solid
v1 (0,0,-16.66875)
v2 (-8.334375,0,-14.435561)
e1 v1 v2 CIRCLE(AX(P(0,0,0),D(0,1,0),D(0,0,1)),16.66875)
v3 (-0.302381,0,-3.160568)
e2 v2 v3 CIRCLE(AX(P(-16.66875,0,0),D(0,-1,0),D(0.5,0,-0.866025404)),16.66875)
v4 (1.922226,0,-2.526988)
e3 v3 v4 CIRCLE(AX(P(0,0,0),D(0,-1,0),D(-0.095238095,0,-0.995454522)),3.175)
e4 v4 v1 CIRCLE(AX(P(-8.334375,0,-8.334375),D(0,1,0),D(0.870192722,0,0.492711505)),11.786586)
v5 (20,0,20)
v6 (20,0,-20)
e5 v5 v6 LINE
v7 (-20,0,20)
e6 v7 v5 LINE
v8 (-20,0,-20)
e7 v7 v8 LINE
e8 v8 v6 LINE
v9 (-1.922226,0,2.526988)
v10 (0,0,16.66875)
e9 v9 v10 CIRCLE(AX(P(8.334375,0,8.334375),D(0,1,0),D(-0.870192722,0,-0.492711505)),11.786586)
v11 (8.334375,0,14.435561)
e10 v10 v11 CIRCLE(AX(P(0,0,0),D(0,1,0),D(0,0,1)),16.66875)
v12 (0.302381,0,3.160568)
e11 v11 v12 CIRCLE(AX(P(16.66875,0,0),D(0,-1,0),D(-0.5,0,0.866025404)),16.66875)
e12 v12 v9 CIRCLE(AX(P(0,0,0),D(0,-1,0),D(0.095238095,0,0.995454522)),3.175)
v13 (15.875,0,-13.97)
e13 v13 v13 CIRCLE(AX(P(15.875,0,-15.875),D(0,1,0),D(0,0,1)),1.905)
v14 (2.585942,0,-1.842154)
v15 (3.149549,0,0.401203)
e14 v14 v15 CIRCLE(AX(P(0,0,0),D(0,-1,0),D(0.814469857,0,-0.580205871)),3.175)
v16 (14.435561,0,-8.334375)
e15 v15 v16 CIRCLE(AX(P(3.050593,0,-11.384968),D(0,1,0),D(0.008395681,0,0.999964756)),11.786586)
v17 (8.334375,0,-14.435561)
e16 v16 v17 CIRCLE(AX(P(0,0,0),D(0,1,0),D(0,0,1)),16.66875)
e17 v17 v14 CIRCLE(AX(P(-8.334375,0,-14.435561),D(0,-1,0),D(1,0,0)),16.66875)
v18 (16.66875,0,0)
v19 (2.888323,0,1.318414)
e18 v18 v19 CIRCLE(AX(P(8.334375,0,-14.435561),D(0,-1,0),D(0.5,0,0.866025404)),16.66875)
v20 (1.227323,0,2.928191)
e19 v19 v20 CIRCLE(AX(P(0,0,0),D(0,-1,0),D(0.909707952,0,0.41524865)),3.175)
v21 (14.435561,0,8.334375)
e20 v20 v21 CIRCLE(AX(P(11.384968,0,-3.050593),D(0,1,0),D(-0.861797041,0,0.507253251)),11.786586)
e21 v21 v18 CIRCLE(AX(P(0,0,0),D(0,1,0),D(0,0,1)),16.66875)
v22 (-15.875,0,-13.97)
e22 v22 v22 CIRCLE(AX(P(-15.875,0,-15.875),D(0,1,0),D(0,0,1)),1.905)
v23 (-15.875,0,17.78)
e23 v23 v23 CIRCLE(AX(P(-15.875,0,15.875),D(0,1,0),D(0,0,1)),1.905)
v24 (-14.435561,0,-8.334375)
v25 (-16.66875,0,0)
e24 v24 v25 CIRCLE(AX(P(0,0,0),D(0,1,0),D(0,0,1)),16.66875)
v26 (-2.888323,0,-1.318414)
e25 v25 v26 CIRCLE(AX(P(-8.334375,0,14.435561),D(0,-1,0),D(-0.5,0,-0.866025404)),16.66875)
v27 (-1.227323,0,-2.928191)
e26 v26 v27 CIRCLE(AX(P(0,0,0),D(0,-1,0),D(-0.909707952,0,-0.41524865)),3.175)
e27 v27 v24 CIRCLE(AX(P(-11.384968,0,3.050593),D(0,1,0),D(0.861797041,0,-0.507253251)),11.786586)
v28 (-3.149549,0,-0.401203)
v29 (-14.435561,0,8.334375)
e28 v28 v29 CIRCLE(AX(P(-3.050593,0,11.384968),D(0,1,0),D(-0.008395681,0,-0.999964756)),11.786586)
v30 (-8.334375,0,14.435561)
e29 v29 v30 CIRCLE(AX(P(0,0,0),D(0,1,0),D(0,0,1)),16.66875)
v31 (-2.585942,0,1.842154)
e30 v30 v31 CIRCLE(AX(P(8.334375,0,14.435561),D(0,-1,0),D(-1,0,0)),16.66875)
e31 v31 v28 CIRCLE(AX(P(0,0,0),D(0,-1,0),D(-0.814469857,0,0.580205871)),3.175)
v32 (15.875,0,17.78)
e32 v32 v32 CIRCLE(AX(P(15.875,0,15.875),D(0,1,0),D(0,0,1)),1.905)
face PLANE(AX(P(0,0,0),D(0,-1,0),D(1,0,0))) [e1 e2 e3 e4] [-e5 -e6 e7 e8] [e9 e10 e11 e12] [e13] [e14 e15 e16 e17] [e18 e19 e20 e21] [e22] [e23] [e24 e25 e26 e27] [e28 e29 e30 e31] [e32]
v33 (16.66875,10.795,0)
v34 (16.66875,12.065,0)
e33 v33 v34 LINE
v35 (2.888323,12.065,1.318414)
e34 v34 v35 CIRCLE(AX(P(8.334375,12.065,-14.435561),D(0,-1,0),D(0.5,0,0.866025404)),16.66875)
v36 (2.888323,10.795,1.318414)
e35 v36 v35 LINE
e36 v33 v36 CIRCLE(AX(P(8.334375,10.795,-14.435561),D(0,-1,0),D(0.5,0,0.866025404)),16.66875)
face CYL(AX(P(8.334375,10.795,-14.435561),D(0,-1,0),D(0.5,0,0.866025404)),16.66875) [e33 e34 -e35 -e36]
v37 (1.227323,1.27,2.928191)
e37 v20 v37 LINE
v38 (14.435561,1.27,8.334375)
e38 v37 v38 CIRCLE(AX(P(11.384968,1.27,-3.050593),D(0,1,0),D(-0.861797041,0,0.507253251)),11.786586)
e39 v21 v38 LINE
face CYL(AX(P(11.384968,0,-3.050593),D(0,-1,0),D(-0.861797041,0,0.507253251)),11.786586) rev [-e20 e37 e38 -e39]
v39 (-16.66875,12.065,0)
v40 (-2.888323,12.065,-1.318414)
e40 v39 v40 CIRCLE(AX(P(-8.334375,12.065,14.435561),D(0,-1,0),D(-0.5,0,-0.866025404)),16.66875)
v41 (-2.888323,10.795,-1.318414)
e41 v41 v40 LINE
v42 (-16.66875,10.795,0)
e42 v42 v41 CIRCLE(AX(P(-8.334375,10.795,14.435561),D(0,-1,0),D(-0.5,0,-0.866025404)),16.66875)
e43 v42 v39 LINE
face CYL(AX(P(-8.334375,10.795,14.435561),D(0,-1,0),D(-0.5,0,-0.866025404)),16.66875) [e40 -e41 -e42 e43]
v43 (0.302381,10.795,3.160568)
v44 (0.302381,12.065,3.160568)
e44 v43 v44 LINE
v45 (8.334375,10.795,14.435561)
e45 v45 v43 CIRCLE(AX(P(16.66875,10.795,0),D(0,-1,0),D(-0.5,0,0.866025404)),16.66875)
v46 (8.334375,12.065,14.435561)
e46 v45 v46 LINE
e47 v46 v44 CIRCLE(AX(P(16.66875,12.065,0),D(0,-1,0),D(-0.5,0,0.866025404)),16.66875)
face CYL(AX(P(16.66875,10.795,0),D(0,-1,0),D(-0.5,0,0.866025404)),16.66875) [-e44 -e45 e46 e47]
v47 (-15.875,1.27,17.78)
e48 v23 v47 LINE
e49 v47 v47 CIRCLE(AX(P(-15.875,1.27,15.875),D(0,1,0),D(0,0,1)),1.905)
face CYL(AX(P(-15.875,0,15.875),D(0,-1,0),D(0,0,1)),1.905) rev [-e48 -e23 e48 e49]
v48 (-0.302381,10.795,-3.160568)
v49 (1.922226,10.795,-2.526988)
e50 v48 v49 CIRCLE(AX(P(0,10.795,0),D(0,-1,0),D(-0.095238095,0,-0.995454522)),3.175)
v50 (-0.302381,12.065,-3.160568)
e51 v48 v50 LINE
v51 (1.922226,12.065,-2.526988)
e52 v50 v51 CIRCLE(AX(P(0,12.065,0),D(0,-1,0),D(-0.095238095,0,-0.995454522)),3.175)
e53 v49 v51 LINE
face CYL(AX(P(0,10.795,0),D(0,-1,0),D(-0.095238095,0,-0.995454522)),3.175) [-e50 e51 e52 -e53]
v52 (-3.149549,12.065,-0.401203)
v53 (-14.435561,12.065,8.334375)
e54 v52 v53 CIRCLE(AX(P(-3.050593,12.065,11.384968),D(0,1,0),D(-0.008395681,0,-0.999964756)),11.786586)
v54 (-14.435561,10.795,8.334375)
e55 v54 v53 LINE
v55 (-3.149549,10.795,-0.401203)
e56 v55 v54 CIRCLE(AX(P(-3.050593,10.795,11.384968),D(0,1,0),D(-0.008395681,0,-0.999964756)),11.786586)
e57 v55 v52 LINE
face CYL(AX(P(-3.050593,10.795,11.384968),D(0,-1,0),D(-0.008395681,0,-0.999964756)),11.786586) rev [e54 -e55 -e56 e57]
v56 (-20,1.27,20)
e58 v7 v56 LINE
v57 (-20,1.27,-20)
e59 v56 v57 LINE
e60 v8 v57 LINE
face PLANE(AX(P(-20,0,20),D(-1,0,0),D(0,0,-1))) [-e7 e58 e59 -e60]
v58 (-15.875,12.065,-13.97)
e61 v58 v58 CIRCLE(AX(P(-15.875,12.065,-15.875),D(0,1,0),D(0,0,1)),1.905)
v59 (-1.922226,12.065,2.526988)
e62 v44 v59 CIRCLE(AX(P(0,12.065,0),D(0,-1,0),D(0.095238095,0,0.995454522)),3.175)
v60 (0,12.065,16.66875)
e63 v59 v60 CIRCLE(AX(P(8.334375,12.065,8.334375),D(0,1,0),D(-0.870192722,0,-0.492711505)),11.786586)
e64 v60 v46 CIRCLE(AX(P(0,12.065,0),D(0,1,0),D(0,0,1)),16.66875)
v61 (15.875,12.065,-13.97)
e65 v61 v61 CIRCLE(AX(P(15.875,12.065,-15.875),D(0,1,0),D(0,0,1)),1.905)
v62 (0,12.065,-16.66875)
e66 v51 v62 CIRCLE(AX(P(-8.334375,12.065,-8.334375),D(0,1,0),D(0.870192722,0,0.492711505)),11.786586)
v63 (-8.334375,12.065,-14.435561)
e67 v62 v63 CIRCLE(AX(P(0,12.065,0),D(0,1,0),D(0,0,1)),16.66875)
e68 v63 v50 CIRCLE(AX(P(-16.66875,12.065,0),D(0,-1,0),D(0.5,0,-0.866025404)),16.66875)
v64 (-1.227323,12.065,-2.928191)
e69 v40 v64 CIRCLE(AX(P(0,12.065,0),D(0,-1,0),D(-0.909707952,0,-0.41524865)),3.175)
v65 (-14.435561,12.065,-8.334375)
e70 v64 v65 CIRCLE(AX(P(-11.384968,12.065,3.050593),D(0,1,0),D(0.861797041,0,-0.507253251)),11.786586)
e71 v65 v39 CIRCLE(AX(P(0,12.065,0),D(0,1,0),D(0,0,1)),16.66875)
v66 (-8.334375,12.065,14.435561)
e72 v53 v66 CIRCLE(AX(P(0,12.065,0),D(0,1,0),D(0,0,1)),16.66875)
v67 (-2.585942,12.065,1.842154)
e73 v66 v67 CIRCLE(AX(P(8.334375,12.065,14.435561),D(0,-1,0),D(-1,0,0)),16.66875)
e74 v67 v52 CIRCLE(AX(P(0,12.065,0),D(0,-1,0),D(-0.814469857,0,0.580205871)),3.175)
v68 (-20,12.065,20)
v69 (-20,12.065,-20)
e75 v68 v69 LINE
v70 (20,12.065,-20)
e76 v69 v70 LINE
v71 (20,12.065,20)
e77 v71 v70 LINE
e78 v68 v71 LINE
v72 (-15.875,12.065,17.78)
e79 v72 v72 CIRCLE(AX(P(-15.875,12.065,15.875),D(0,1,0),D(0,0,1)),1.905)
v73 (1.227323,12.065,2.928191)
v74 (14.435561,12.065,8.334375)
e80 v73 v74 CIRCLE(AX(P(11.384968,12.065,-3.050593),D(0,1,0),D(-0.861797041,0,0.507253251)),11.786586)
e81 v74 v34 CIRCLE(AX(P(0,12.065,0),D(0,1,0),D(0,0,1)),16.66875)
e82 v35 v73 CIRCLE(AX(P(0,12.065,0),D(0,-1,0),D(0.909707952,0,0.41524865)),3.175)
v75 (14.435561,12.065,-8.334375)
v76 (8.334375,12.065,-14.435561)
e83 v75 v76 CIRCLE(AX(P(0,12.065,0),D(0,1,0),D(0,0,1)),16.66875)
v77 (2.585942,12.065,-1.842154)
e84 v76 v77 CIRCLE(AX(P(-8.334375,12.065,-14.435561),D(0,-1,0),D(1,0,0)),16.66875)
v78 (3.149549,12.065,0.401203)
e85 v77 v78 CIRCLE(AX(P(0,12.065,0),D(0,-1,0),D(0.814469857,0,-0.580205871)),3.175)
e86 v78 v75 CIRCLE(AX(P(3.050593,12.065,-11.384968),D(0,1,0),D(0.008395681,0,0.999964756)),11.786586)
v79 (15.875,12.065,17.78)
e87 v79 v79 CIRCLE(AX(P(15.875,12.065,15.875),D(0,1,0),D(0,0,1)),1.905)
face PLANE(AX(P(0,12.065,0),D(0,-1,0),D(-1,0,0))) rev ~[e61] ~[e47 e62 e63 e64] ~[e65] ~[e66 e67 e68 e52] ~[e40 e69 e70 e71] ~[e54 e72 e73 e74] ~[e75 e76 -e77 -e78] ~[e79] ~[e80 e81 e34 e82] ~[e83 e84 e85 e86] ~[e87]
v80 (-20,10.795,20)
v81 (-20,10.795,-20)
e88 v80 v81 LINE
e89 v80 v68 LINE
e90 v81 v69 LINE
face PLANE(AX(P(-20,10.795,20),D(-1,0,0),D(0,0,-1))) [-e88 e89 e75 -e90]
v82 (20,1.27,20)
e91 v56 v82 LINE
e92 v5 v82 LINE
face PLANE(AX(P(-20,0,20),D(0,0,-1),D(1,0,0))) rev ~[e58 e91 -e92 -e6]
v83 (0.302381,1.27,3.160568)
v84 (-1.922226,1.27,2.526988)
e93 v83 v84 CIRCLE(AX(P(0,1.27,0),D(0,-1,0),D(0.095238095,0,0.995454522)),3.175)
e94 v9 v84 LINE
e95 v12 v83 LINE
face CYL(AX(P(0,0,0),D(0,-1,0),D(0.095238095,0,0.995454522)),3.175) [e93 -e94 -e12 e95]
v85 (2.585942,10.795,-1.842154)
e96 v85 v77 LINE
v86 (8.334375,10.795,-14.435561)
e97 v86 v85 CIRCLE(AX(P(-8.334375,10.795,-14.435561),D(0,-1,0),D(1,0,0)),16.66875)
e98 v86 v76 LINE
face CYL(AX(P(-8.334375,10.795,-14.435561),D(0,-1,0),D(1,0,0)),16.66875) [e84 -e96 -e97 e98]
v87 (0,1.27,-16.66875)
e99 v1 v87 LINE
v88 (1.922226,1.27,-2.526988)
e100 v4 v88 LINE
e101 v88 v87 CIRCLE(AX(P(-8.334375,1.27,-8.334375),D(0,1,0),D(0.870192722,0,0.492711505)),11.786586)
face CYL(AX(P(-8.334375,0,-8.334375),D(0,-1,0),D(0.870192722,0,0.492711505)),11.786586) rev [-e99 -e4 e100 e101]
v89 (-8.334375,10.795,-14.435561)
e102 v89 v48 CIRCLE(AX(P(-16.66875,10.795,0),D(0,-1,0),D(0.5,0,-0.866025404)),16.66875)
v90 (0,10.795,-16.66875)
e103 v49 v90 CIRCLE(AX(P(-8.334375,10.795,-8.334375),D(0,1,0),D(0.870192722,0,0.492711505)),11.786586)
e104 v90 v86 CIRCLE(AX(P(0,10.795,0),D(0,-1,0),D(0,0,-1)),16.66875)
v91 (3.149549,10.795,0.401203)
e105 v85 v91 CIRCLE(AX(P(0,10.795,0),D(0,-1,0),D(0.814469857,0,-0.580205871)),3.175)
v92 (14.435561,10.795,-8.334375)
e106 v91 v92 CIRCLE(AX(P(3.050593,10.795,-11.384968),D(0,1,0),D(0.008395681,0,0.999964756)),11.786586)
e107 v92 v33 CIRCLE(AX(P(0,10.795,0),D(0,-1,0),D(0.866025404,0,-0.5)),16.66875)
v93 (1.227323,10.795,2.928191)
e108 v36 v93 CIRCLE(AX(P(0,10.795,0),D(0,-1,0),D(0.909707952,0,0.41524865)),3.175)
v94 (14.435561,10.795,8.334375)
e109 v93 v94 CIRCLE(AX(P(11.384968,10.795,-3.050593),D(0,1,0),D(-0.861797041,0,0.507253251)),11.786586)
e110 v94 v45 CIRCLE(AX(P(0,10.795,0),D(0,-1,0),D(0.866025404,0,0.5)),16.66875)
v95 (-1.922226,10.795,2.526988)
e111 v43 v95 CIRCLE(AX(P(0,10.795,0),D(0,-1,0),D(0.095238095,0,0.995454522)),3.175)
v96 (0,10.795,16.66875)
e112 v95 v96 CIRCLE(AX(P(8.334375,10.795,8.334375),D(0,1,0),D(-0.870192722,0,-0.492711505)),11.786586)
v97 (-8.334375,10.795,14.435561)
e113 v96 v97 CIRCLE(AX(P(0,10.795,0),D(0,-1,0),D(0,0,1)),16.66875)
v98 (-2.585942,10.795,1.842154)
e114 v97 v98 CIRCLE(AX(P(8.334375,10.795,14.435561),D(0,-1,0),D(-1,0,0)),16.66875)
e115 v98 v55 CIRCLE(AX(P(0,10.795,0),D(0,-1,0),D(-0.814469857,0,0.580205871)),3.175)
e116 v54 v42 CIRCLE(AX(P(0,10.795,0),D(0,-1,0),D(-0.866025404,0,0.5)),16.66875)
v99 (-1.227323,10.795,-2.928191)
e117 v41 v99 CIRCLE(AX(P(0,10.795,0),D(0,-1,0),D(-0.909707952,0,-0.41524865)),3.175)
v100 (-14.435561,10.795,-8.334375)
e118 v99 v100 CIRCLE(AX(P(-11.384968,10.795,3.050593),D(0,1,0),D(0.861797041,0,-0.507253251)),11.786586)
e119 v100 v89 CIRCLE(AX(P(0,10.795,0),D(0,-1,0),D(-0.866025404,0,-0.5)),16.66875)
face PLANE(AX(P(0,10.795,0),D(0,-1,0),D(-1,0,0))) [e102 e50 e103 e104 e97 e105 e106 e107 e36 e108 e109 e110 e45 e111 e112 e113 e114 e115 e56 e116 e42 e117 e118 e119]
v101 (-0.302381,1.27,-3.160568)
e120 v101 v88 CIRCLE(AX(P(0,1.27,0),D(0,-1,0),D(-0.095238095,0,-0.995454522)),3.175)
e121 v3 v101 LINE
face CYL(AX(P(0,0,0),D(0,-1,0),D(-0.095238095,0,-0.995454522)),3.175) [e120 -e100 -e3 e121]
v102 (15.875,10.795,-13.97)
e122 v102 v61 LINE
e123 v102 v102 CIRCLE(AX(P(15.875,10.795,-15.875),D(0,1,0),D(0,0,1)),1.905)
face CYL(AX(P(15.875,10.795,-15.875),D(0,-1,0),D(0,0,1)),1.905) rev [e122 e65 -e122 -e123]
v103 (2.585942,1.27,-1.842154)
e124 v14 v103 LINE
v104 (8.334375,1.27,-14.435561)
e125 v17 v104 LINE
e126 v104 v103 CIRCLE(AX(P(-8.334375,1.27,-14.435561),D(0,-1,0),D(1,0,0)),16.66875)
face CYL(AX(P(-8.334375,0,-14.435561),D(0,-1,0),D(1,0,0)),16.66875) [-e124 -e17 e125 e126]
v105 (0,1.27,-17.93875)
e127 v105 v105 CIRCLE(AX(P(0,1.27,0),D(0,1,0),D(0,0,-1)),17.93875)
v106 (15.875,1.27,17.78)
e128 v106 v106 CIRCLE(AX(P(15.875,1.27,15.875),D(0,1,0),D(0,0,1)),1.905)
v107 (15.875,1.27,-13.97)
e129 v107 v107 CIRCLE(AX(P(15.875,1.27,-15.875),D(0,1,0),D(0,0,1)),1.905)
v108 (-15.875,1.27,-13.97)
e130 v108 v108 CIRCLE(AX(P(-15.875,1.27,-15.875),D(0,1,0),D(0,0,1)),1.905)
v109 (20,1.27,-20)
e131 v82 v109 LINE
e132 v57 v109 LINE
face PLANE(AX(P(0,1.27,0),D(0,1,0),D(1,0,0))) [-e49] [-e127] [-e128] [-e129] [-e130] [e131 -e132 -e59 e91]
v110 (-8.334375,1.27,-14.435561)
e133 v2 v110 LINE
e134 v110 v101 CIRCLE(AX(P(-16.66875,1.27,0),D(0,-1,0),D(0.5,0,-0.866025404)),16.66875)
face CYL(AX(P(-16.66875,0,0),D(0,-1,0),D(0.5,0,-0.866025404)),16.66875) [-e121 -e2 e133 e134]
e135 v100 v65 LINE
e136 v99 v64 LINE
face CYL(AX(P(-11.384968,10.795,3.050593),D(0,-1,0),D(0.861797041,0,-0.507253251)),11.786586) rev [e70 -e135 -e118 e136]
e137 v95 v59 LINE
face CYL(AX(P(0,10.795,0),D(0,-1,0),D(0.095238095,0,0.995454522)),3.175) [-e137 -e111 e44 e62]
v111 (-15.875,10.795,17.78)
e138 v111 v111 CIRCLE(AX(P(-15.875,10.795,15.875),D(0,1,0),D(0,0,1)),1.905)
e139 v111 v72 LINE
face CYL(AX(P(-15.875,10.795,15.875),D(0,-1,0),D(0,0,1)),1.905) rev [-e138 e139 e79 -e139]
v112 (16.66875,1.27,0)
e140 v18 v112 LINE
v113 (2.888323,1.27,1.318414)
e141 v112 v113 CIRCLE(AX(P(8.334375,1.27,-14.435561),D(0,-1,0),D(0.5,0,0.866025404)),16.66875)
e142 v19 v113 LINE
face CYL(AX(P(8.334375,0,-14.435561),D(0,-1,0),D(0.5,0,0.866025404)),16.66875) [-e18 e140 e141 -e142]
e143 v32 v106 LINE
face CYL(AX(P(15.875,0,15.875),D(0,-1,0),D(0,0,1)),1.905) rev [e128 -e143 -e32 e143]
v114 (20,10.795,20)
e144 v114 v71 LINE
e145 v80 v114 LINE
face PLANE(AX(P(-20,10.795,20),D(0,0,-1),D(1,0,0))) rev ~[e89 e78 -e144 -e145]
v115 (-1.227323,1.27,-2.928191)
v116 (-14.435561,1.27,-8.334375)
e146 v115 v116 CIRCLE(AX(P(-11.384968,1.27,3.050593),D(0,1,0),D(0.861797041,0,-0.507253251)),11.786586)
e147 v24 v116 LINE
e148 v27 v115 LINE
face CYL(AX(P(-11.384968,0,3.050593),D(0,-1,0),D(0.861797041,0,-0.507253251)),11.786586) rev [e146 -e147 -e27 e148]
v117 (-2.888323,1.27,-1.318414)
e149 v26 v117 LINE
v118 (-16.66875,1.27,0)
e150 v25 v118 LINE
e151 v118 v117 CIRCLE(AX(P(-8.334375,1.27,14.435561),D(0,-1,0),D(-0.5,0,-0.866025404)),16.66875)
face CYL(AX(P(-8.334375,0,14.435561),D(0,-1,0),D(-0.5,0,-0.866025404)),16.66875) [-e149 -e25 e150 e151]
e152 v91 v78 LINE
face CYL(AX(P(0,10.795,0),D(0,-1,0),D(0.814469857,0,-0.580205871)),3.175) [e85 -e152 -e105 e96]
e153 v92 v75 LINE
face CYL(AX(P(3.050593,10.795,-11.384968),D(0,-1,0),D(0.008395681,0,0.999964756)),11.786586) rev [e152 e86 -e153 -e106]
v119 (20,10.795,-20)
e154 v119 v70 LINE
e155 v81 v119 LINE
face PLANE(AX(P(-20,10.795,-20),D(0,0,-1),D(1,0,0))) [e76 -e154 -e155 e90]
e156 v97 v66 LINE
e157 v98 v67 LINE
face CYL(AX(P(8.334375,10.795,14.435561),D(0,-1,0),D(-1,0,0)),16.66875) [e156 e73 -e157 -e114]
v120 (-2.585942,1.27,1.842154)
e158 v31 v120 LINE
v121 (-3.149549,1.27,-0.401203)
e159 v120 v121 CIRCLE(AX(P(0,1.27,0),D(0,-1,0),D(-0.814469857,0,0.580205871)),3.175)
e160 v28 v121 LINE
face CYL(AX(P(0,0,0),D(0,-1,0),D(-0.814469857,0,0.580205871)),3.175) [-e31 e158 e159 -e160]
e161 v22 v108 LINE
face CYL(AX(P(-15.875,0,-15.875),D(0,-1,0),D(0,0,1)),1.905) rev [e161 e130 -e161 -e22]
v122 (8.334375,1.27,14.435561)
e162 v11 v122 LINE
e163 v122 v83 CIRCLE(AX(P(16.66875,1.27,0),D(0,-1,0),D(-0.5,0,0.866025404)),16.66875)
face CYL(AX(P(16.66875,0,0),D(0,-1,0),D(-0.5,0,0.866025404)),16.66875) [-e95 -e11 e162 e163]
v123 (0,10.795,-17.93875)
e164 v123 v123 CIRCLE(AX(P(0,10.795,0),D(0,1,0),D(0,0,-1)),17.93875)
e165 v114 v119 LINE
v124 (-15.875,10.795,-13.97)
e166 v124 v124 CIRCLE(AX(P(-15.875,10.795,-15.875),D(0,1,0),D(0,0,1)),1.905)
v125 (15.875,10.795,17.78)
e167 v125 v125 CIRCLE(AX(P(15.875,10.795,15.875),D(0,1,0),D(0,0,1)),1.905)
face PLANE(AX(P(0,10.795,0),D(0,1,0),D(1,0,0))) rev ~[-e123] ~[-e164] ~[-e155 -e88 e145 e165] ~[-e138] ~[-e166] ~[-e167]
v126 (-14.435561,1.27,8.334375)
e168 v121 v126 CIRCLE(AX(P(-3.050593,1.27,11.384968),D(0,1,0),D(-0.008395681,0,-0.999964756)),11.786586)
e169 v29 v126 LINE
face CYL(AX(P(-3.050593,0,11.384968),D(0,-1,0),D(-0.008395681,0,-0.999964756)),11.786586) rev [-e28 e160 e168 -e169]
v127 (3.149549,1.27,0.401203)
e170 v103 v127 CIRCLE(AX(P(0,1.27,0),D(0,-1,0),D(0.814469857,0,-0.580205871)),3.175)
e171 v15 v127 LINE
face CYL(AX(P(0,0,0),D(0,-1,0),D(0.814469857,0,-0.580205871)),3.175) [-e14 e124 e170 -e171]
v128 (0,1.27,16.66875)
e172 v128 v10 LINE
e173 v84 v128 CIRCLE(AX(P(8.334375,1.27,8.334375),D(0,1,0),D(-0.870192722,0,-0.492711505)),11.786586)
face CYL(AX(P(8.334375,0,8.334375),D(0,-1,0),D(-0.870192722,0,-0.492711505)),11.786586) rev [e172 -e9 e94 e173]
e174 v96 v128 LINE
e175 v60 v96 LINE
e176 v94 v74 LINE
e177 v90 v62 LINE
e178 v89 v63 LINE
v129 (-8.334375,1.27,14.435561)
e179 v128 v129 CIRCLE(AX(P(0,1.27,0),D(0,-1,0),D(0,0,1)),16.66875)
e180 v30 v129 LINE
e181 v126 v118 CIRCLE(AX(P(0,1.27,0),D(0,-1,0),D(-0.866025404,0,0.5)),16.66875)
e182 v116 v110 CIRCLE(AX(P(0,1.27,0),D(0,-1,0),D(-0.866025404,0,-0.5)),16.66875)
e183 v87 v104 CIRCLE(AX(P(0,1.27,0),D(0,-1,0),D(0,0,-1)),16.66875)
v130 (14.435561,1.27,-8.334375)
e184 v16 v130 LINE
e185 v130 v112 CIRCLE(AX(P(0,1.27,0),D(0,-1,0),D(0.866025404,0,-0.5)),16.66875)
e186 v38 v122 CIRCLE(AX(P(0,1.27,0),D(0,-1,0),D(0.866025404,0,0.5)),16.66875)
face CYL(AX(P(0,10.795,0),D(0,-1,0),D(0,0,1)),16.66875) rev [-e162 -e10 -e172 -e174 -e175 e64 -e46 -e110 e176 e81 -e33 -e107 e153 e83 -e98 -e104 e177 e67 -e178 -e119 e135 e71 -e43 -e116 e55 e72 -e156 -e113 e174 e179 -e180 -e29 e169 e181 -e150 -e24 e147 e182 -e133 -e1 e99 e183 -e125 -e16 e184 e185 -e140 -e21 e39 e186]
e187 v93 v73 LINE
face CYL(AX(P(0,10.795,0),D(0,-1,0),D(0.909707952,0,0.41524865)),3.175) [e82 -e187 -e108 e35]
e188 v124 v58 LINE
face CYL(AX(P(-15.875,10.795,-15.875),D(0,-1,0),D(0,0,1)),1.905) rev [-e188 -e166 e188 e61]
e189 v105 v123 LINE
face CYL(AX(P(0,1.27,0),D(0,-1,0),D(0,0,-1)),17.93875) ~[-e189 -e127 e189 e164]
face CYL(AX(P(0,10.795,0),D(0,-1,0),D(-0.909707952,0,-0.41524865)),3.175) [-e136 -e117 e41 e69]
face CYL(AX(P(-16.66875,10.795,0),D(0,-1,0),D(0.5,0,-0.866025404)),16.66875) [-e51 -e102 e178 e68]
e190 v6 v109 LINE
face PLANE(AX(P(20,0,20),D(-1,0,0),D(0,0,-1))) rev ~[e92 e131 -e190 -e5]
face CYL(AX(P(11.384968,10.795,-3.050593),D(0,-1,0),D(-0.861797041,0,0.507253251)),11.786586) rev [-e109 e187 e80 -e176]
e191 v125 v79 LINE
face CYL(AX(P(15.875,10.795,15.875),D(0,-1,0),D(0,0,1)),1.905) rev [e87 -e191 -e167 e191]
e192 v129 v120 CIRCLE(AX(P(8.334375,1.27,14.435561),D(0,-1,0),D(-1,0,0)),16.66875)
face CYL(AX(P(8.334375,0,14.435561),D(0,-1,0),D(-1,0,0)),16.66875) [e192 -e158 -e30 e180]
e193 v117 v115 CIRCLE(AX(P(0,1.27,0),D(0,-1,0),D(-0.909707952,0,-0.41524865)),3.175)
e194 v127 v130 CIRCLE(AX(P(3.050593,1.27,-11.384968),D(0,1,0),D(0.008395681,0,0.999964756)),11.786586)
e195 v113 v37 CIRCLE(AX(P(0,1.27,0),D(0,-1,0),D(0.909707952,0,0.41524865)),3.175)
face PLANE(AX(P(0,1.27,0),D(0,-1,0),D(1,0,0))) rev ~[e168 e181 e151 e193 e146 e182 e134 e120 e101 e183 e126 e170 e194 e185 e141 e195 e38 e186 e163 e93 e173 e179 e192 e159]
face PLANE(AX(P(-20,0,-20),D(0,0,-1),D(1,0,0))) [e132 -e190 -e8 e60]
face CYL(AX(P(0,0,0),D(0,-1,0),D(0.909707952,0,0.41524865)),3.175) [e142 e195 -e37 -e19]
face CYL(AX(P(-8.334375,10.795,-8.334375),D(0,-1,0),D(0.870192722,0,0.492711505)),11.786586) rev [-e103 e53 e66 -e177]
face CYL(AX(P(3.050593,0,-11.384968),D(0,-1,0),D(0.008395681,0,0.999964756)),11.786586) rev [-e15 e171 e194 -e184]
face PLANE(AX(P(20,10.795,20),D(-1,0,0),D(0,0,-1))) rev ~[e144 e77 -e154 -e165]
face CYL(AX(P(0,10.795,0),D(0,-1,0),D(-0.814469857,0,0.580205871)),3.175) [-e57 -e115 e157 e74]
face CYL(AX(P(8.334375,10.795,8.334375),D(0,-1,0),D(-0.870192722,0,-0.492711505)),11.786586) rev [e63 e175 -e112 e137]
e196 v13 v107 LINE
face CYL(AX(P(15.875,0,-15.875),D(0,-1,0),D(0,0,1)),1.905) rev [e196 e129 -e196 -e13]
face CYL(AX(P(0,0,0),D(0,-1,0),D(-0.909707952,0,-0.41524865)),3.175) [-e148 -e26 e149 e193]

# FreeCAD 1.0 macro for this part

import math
import FreeCAD as App
import Part
import Sketcher

V = App.Vector
Q = App.Units.Quantity

doc = App.newDocument("Part")
body = doc.addObject("PartDesign::Body", "Body")

# Sketch on XZ plane
sketch1 = doc.addObject("Sketcher::SketchObject", "Sketch")
body.addObject(sketch1)
sketch1.AttachmentSupport = (doc.XZ_Plane, [""])
sketch1.MapMode = "FlatFace"
sketch1.addGeometry([
    Part.LineSegment(V(-20, -20, 0), V(-20, 20, 0)),  # 0
    Part.LineSegment(V(-20, 20, 0), V(20, 20, 0)),  # 1
    Part.LineSegment(V(20, 20, 0), V(20, -20, 0)),  # 2
    Part.LineSegment(V(20, -20, 0), V(-20, -20, 0)),  # 3
    Part.Circle(V(-15.875, 15.875, 0), V(0, 0, 1), 1.905),  # 4
    Part.Circle(V(0, 0, 0), V(0, 0, 1), 16.66875),  # 5
    Part.Circle(V(15.875, 15.875, 0), V(0, 0, 1), 1.905),  # 6
    Part.Circle(V(-15.875, -15.875, 0), V(0, 0, 1), 1.905),  # 7
    Part.Circle(V(15.875, -15.875, 0), V(0, 0, 1), 1.905),  # 8
], False)
sketch1.addConstraint([
    Sketcher.Constraint("Coincident", 0, 2, 1, 1),
    Sketcher.Constraint("Coincident", 1, 2, 2, 1),
    Sketcher.Constraint("Coincident", 2, 2, 3, 1),
    Sketcher.Constraint("Coincident", 3, 2, 0, 1),
    Sketcher.Constraint("Vertical", 0),
    Sketcher.Constraint("Horizontal", 1),
    Sketcher.Constraint("Vertical", 2),
    Sketcher.Constraint("Horizontal", 3),
    Sketcher.Constraint("Coincident", 5, 3, -1, 1),
    Sketcher.Constraint("Equal", 4, 6),
    Sketcher.Constraint("Equal", 6, 7),
    Sketcher.Constraint("Equal", 7, 8),
    Sketcher.Constraint("Symmetric", 6, 3, 7, 3, -1, 1),
    Sketcher.Constraint("Symmetric", 4, 3, 8, 3, -1, 1),
    Sketcher.Constraint("Symmetric", 0, 2, 2, 2, -1, 1),
    Sketcher.Constraint("Symmetric", 4, 3, 6, 3, -2),
    Sketcher.Constraint("Equal", 3, 0),
    Sketcher.Constraint("Diameter", 4, Q("0.15 in")),
    Sketcher.Constraint("Diameter", 5, Q("1.3125 in")),
    Sketcher.Constraint("DistanceX", 4, 3, 6, 3, Q("1.25 in")),
    Sketcher.Constraint("DistanceY", 7, 3, 4, 3, Q("1.25 in")),
    Sketcher.Constraint("DistanceX", 1, 1, 1, 2, 40.0),
])
pad1 = doc.addObject("PartDesign::Pad", "Pad")
body.addObject(pad1)
pad1.Profile = sketch1
pad1.Length = Q("0.05 in")
pad1.Reversed = True

# Sketch on XZ plane
sketch2 = doc.addObject("Sketcher::SketchObject", "Sketch001")
body.addObject(sketch2)
sketch2.AttachmentSupport = (doc.XZ_Plane, [""])
sketch2.MapMode = "FlatFace"
sketch2.AttachmentOffset = App.Placement(V(0, 0, -0.05 * 25.4), App.Rotation())
sketch2.addGeometry([
    Part.Circle(V(0, 0, 0), V(0, 0, 1), 17.93875),
    Part.Circle(V(0, 0, 0), V(0, 0, 1), 16.66875),
], False)
sketch2.addConstraint([
    Sketcher.Constraint("Coincident", 0, 3, -1, 1),
    Sketcher.Constraint("Coincident", 1, 3, -1, 1),
    Sketcher.Constraint("Diameter", 1, Q("1.3125 in")),
    Sketcher.Constraint("Diameter", 0, Q("1.4125 in")),
])
pad2 = doc.addObject("PartDesign::Pad", "Pad001")
body.addObject(pad2)
pad2.Profile = sketch2
pad2.Length = Q("0.375 in")
pad2.Reversed = True

# Sketch on XZ plane
sketch3 = doc.addObject("Sketcher::SketchObject", "Sketch002")
body.addObject(sketch3)
sketch3.AttachmentSupport = (doc.XZ_Plane, [""])
sketch3.MapMode = "FlatFace"
sketch3.AttachmentOffset = App.Placement(V(0, 0, -0.425 * 25.4), App.Rotation())
sketch3.addGeometry([
    Part.LineSegment(V(-20, -20, 0), V(-20, 20, 0)),  # 0
    Part.LineSegment(V(-20, 20, 0), V(20, 20, 0)),  # 1
    Part.LineSegment(V(20, 20, 0), V(20, -20, 0)),  # 2
    Part.LineSegment(V(20, -20, 0), V(-20, -20, 0)),  # 3
    Part.Circle(V(-15.875, 15.875, 0), V(0, 0, 1), 1.905),  # 4
    Part.Circle(V(0, 0, 0), V(0, 0, 1), 16.66875),  # 5
    Part.Circle(V(15.875, 15.875, 0), V(0, 0, 1), 1.905),  # 6
    Part.Circle(V(-15.875, -15.875, 0), V(0, 0, 1), 1.905),  # 7
    Part.Circle(V(15.875, -15.875, 0), V(0, 0, 1), 1.905),  # 8
], False)
sketch3.addConstraint([
    Sketcher.Constraint("Coincident", 0, 2, 1, 1),
    Sketcher.Constraint("Coincident", 1, 2, 2, 1),
    Sketcher.Constraint("Coincident", 2, 2, 3, 1),
    Sketcher.Constraint("Coincident", 3, 2, 0, 1),
    Sketcher.Constraint("Vertical", 0),
    Sketcher.Constraint("Horizontal", 1),
    Sketcher.Constraint("Vertical", 2),
    Sketcher.Constraint("Horizontal", 3),
    Sketcher.Constraint("Coincident", 5, 3, -1, 1),
    Sketcher.Constraint("Equal", 4, 6),
    Sketcher.Constraint("Equal", 6, 7),
    Sketcher.Constraint("Equal", 7, 8),
    Sketcher.Constraint("Symmetric", 6, 3, 7, 3, -1, 1),
    Sketcher.Constraint("Symmetric", 4, 3, 8, 3, -1, 1),
    Sketcher.Constraint("Symmetric", 0, 2, 2, 2, -1, 1),
    Sketcher.Constraint("Symmetric", 4, 3, 6, 3, -2),
    Sketcher.Constraint("Equal", 3, 0),
    Sketcher.Constraint("Diameter", 4, Q("0.15 in")),
    Sketcher.Constraint("Diameter", 5, Q("1.3125 in")),
    Sketcher.Constraint("DistanceX", 4, 3, 6, 3, Q("1.25 in")),
    Sketcher.Constraint("DistanceY", 7, 3, 4, 3, Q("1.25 in")),
    Sketcher.Constraint("DistanceX", 1, 1, 1, 2, 40.0),
])
pad3 = doc.addObject("PartDesign::Pad", "Pad002")
body.addObject(pad3)
pad3.Profile = sketch3
pad3.Length = Q("0.05 in")
pad3.Reversed = True

# Sketch on XZ plane
sketch4 = doc.addObject("Sketcher::SketchObject", "Sketch003")
body.addObject(sketch4)
sketch4.AttachmentSupport = (doc.XZ_Plane, [""])
sketch4.MapMode = "FlatFace"
sketch4.addGeometry([
    Part.ArcOfCircle(Part.Circle(V(8.334375, 8.334375, 0), V(0, 0, 1), 11.786586), math.radians(135), math.radians(209.518957)),  # 0
    Part.ArcOfCircle(Part.Circle(V(0, 0, 0), V(0, 0, 1), 16.66875), math.radians(90), math.radians(120)),  # 1
    Part.ArcOfCircle(Part.Circle(V(8.334375, 14.435561, 0), V(0, 0, 1), 16.66875), math.radians(-180), math.radians(-130.930048)),  # 2
    Part.ArcOfCircle(Part.Circle(V(0, 0, 0), V(0, 0, 1), 3.175), math.radians(144.534976), math.radians(187.259479)),  # 3
    Part.ArcOfCircle(Part.Circle(V(-3.050593, 11.384968, 0), V(0, 0, 1), 11.786586), math.radians(-165), math.radians(-90.481043)),  # 4
    Part.ArcOfCircle(Part.Circle(V(0, 0, 0), V(0, 0, 1), 16.66875), math.radians(150), math.radians(180)),  # 5
    Part.ArcOfCircle(Part.Circle(V(-8.334375, 14.435561, 0), V(0, 0, 1), 16.66875), math.radians(-120), math.radians(-70.930048)),  # 6
    Part.ArcOfCircle(Part.Circle(V(0, 0, 0), V(0, 0, 1), 3.175), math.radians(-155.465024), math.radians(-112.740521)),  # 7
    Part.ArcOfCircle(Part.Circle(V(-11.384968, 3.050593, 0), V(0, 0, 1), 11.786586), math.radians(-105), math.radians(-30.481043)),  # 8
    Part.ArcOfCircle(Part.Circle(V(0, 0, 0), V(0, 0, 1), 16.66875), math.radians(-150), math.radians(-120)),  # 9
    Part.ArcOfCircle(Part.Circle(V(-16.66875, 0, 0), V(0, 0, 1), 16.66875), math.radians(-60), math.radians(-10.930048)),  # 10
    Part.ArcOfCircle(Part.Circle(V(0, 0, 0), V(0, 0, 1), 3.175), math.radians(-95.465024), math.radians(-52.740521)),  # 11
    Part.ArcOfCircle(Part.Circle(V(-8.334375, -8.334375, 0), V(0, 0, 1), 11.786586), math.radians(-45), math.radians(29.518957)),  # 12
    Part.ArcOfCircle(Part.Circle(V(0, 0, 0), V(0, 0, 1), 16.66875), math.radians(-90), math.radians(-60)),  # 13
    Part.ArcOfCircle(Part.Circle(V(-8.334375, -14.435561, 0), V(0, 0, 1), 16.66875), math.radians(0), math.radians(49.069952)),  # 14
    Part.ArcOfCircle(Part.Circle(V(0, 0, 0), V(0, 0, 1), 3.175), math.radians(-35.465024), math.radians(7.259479)),  # 15
    Part.ArcOfCircle(Part.Circle(V(3.050593, -11.384968, 0), V(0, 0, 1), 11.786586), math.radians(15), math.radians(89.518957)),  # 16
    Part.ArcOfCircle(Part.Circle(V(0, 0, 0), V(0, 0, 1), 16.66875), math.radians(-30), math.radians(0)),  # 17
    Part.ArcOfCircle(Part.Circle(V(8.334375, -14.435561, 0), V(0, 0, 1), 16.66875), math.radians(60), math.radians(109.069952)),  # 18
    Part.ArcOfCircle(Part.Circle(V(0, 0, 0), V(0, 0, 1), 3.175), math.radians(24.534976), math.radians(67.259479)),  # 19
    Part.ArcOfCircle(Part.Circle(V(11.384968, -3.050593, 0), V(0, 0, 1), 11.786586), math.radians(75), math.radians(149.518957)),  # 20
    Part.ArcOfCircle(Part.Circle(V(0, 0, 0), V(0, 0, 1), 16.66875), math.radians(30), math.radians(60)),  # 21
    Part.ArcOfCircle(Part.Circle(V(16.66875, 0, 0), V(0, 0, 1), 16.66875), math.radians(120), math.radians(169.069952)),  # 22
    Part.ArcOfCircle(Part.Circle(V(0, 0, 0), V(0, 0, 1), 3.175), math.radians(84.534976), math.radians(127.259479)),  # 23
], False)
sketch4.addConstraint([
    Sketcher.Constraint("Coincident", 0, 1, 1, 1),
    Sketcher.Constraint("Coincident", 1, 2, 2, 1),
    Sketcher.Constraint("Coincident", 2, 2, 3, 1),
    Sketcher.Constraint("Coincident", 3, 2, 4, 2),
    Sketcher.Constraint("Coincident", 4, 1, 5, 1),
    Sketcher.Constraint("Coincident", 5, 2, 6, 1),
    Sketcher.Constraint("Coincident", 6, 2, 7, 1),
    Sketcher.Constraint("Coincident", 7, 2, 8, 2),
    Sketcher.Constraint("Coincident", 8, 1, 9, 1),
    Sketcher.Constraint("Coincident", 9, 2, 10, 1),
    Sketcher.Constraint("Coincident", 10, 2, 11, 1),
    Sketcher.Constraint("Coincident", 11, 2, 12, 2),
    Sketcher.Constraint("Coincident", 12, 1, 13, 1),
    Sketcher.Constraint("Coincident", 13, 2, 14, 1),
    Sketcher.Constraint("Coincident", 14, 2, 15, 1),
    Sketcher.Constraint("Coincident", 15, 2, 16, 2),
    Sketcher.Constraint("Coincident", 16, 1, 17, 1),
    Sketcher.Constraint("Coincident", 17, 2, 18, 1),
    Sketcher.Constraint("Coincident", 18, 2, 19, 1),
    Sketcher.Constraint("Coincident", 19, 2, 20, 2),
    Sketcher.Constraint("Coincident", 20, 1, 21, 1),
    Sketcher.Constraint("Coincident", 21, 2, 22, 1),
    Sketcher.Constraint("Coincident", 22, 2, 23, 1),
    Sketcher.Constraint("Coincident", 23, 2, 0, 2),
    Sketcher.Constraint("Coincident", 1, 3, -1, 1),
    Sketcher.Constraint("Coincident", 3, 3, -1, 1),
    Sketcher.Constraint("Coincident", 5, 3, -1, 1),
    Sketcher.Constraint("Coincident", 7, 3, -1, 1),
    Sketcher.Constraint("Coincident", 9, 3, -1, 1),
    Sketcher.Constraint("Coincident", 11, 3, -1, 1),
    Sketcher.Constraint("Coincident", 13, 3, -1, 1),
    Sketcher.Constraint("Coincident", 15, 3, -1, 1),
    Sketcher.Constraint("Coincident", 17, 3, -1, 1),
    Sketcher.Constraint("Coincident", 19, 3, -1, 1),
    Sketcher.Constraint("Coincident", 21, 3, -1, 1),
    Sketcher.Constraint("Coincident", 23, 3, -1, 1),
    Sketcher.Constraint("Coincident", 1, 2, 6, 3),
    Sketcher.Constraint("Coincident", 5, 2, 10, 3),
    Sketcher.Constraint("Coincident", 9, 2, 14, 3),
    Sketcher.Constraint("Coincident", 13, 2, 18, 3),
    Sketcher.Constraint("Coincident", 17, 2, 22, 3),
    Sketcher.Constraint("Coincident", 21, 2, 2, 3),
    Sketcher.Constraint("Equal", 1, 2),
    Sketcher.Constraint("Equal", 0, 4),
    Sketcher.Constraint("Equal", 2, 5),
    Sketcher.Constraint("Equal", 5, 6),
    Sketcher.Constraint("Equal", 3, 7),
    Sketcher.Constraint("Equal", 4, 8),
    Sketcher.Constraint("Equal", 6, 9),
    Sketcher.Constraint("Equal", 9, 10),
    Sketcher.Constraint("Equal", 7, 11),
    Sketcher.Constraint("Equal", 8, 12),
    Sketcher.Constraint("Equal", 10, 13),
    Sketcher.Constraint("Equal", 13, 14),
    Sketcher.Constraint("Equal", 11, 15),
    Sketcher.Constraint("Equal", 12, 16),
    Sketcher.Constraint("Equal", 14, 17),
    Sketcher.Constraint("Equal", 17, 18),
    Sketcher.Constraint("Equal", 15, 19),
    Sketcher.Constraint("Equal", 16, 20),
    Sketcher.Constraint("Equal", 18, 21),
    Sketcher.Constraint("Equal", 19, 23),
    Sketcher.Constraint("Symmetric", 0, 3, 12, 3, -1, 1),
    Sketcher.Constraint("Symmetric", 4, 3, 16, 3, -1, 1),
    Sketcher.Constraint("Symmetric", 8, 3, 20, 3, -1, 1),
    Sketcher.Constraint("PointOnObject", 10, 3, -1),
    Sketcher.Constraint("PointOnObject", 0, 1, -2),
    Sketcher.Constraint("Horizontal", 0, 3, 4, 1),
    Sketcher.Constraint("Horizontal", 12, 3, 8, 1),
    Sketcher.Constraint("Vertical", 0, 3, 2, 3),
    Sketcher.Constraint("Radius", 1, Q("0.65625 in")),
    Sketcher.Constraint("Radius", 3, Q("0.125 in")),
    Sketcher.Constraint("DistanceY", -1, 1, 0, 3, Q("0.328125 in")),
    Sketcher.Constraint("DistanceX", 8, 3, 4, 3, Q("0.328125 in")),
    Sketcher.Constraint("DistanceY", 8, 3, 4, 3, Q("0.328125 in")),
])
pad4 = doc.addObject("PartDesign::Pad", "Pad003")
body.addObject(pad4)
pad4.Profile = sketch4
pad4.Length = Q("0.05 in")
pad4.Reversed = True

# Sketch on XZ plane
sketch5 = doc.addObject("Sketcher::SketchObject", "Sketch004")
body.addObject(sketch5)
sketch5.AttachmentSupport = (doc.XZ_Plane, [""])
sketch5.MapMode = "FlatFace"
sketch5.AttachmentOffset = App.Placement(V(0, 0, -0.425 * 25.4), App.Rotation())
sketch5.addGeometry([
    Part.ArcOfCircle(Part.Circle(V(11.384968, -3.050593, 0), V(0, 0, 1), 11.786586), math.radians(75), math.radians(149.518957)),  # 0
    Part.ArcOfCircle(Part.Circle(V(0, 0, 0), V(0, 0, 1), 3.175), math.radians(24.534976), math.radians(67.259479)),  # 1
    Part.ArcOfCircle(Part.Circle(V(8.334375, -14.435561, 0), V(0, 0, 1), 16.66875), math.radians(60), math.radians(109.069952)),  # 2
    Part.ArcOfCircle(Part.Circle(V(0, 0, 0), V(0, 0, 1), 16.66875), math.radians(-30), math.radians(0)),  # 3
    Part.ArcOfCircle(Part.Circle(V(3.050593, -11.384968, 0), V(0, 0, 1), 11.786586), math.radians(15), math.radians(89.518957)),  # 4
    Part.ArcOfCircle(Part.Circle(V(0, 0, 0), V(0, 0, 1), 3.175), math.radians(-35.465024), math.radians(7.259479)),  # 5
    Part.ArcOfCircle(Part.Circle(V(-8.334375, -14.435561, 0), V(0, 0, 1), 16.66875), math.radians(0), math.radians(49.069952)),  # 6
    Part.ArcOfCircle(Part.Circle(V(0, 0, 0), V(0, 0, 1), 16.66875), math.radians(-90), math.radians(-60)),  # 7
    Part.ArcOfCircle(Part.Circle(V(-8.334375, -8.334375, 0), V(0, 0, 1), 11.786586), math.radians(-45), math.radians(29.518957)),  # 8
    Part.ArcOfCircle(Part.Circle(V(0, 0, 0), V(0, 0, 1), 3.175), math.radians(-95.465024), math.radians(-52.740521)),  # 9
    Part.ArcOfCircle(Part.Circle(V(-16.66875, 0, 0), V(0, 0, 1), 16.66875), math.radians(-60), math.radians(-10.930048)),  # 10
    Part.ArcOfCircle(Part.Circle(V(0, 0, 0), V(0, 0, 1), 16.66875), math.radians(-150), math.radians(-120)),  # 11
    Part.ArcOfCircle(Part.Circle(V(-11.384968, 3.050593, 0), V(0, 0, 1), 11.786586), math.radians(-105), math.radians(-30.481043)),  # 12
    Part.ArcOfCircle(Part.Circle(V(0, 0, 0), V(0, 0, 1), 3.175), math.radians(-155.465024), math.radians(-112.740521)),  # 13
    Part.ArcOfCircle(Part.Circle(V(-8.334375, 14.435561, 0), V(0, 0, 1), 16.66875), math.radians(-120), math.radians(-70.930048)),  # 14
    Part.ArcOfCircle(Part.Circle(V(0, 0, 0), V(0, 0, 1), 16.66875), math.radians(150), math.radians(180)),  # 15
    Part.ArcOfCircle(Part.Circle(V(-3.050593, 11.384968, 0), V(0, 0, 1), 11.786586), math.radians(-165), math.radians(-90.481043)),  # 16
    Part.ArcOfCircle(Part.Circle(V(0, 0, 0), V(0, 0, 1), 3.175), math.radians(144.534976), math.radians(187.259479)),  # 17
    Part.ArcOfCircle(Part.Circle(V(8.334375, 14.435561, 0), V(0, 0, 1), 16.66875), math.radians(-180), math.radians(-130.930048)),  # 18
    Part.ArcOfCircle(Part.Circle(V(0, 0, 0), V(0, 0, 1), 16.66875), math.radians(90), math.radians(120)),  # 19
    Part.ArcOfCircle(Part.Circle(V(8.334375, 8.334375, 0), V(0, 0, 1), 11.786586), math.radians(135), math.radians(209.518957)),  # 20
    Part.ArcOfCircle(Part.Circle(V(0, 0, 0), V(0, 0, 1), 3.175), math.radians(84.534976), math.radians(127.259479)),  # 21
    Part.ArcOfCircle(Part.Circle(V(16.66875, 0, 0), V(0, 0, 1), 16.66875), math.radians(120), math.radians(169.069952)),  # 22
    Part.ArcOfCircle(Part.Circle(V(0, 0, 0), V(0, 0, 1), 16.66875), math.radians(30), math.radians(60)),  # 23
], False)
sketch5.addConstraint([
    Sketcher.Constraint("Coincident", 0, 2, 1, 2),
    Sketcher.Constraint("Coincident", 1, 1, 2, 2),
    Sketcher.Constraint("Coincident", 2, 1, 3, 2),
    Sketcher.Constraint("Coincident", 3, 1, 4, 1),
    Sketcher.Constraint("Coincident", 4, 2, 5, 2),
    Sketcher.Constraint("Coincident", 5, 1, 6, 2),
    Sketcher.Constraint("Coincident", 6, 1, 7, 2),
    Sketcher.Constraint("Coincident", 7, 1, 8, 1),
    Sketcher.Constraint("Coincident", 8, 2, 9, 2),
    Sketcher.Constraint("Coincident", 9, 1, 10, 2),
    Sketcher.Constraint("Coincident", 10, 1, 11, 2),
    Sketcher.Constraint("Coincident", 11, 1, 12, 1),
    Sketcher.Constraint("Coincident", 12, 2, 13, 2),
    Sketcher.Constraint("Coincident", 13, 1, 14, 2),
    Sketcher.Constraint("Coincident", 14, 1, 15, 2),
    Sketcher.Constraint("Coincident", 15, 1, 16, 1),
    Sketcher.Constraint("Coincident", 16, 2, 17, 2),
    Sketcher.Constraint("Coincident", 17, 1, 18, 2),
    Sketcher.Constraint("Coincident", 18, 1, 19, 2),
    Sketcher.Constraint("Coincident", 19, 1, 20, 1),
    Sketcher.Constraint("Coincident", 20, 2, 21, 2),
    Sketcher.Constraint("Coincident", 21, 1, 22, 2),
    Sketcher.Constraint("Coincident", 22, 1, 23, 2),
    Sketcher.Constraint("Coincident", 23, 1, 0, 1),
    Sketcher.Constraint("Coincident", 1, 3, -1, 1),
    Sketcher.Constraint("Coincident", 3, 3, -1, 1),
    Sketcher.Constraint("Coincident", 5, 3, -1, 1),
    Sketcher.Constraint("Coincident", 7, 3, -1, 1),
    Sketcher.Constraint("Coincident", 9, 3, -1, 1),
    Sketcher.Constraint("Coincident", 11, 3, -1, 1),
    Sketcher.Constraint("Coincident", 13, 3, -1, 1),
    Sketcher.Constraint("Coincident", 15, 3, -1, 1),
    Sketcher.Constraint("Coincident", 17, 3, -1, 1),
    Sketcher.Constraint("Coincident", 19, 3, -1, 1),
    Sketcher.Constraint("Coincident", 21, 3, -1, 1),
    Sketcher.Constraint("Coincident", 23, 3, -1, 1),
    Sketcher.Constraint("Coincident", 2, 1, 22, 3),
    Sketcher.Constraint("Coincident", 6, 1, 2, 3),
    Sketcher.Constraint("Coincident", 10, 1, 6, 3),
    Sketcher.Constraint("Coincident", 14, 1, 10, 3),
    Sketcher.Constraint("Coincident", 18, 1, 14, 3),
    Sketcher.Constraint("Coincident", 22, 1, 18, 3),
    Sketcher.Constraint("Equal", 2, 3),
    Sketcher.Constraint("Equal", 0, 4),
    Sketcher.Constraint("Equal", 1, 5),
    Sketcher.Constraint("Equal", 3, 6),
    Sketcher.Constraint("Equal", 6, 7),
    Sketcher.Constraint("Equal", 4, 8),
    Sketcher.Constraint("Equal", 5, 9),
    Sketcher.Constraint("Equal", 7, 10),
    Sketcher.Constraint("Equal", 10, 11),
    Sketcher.Constraint("Equal", 8, 12),
    Sketcher.Constraint("Equal", 9, 13),
    Sketcher.Constraint("Equal", 11, 14),
    Sketcher.Constraint("Equal", 14, 15),
    Sketcher.Constraint("Equal", 12, 16),
    Sketcher.Constraint("Equal", 13, 17),
    Sketcher.Constraint("Equal", 15, 18),
    Sketcher.Constraint("Equal", 18, 19),
    Sketcher.Constraint("Equal", 16, 20),
    Sketcher.Constraint("Equal", 17, 21),
    Sketcher.Constraint("Equal", 19, 22),
    Sketcher.Constraint("Symmetric", 0, 3, 12, 3, -1, 1),
    Sketcher.Constraint("Symmetric", 4, 3, 16, 3, -1, 1),
    Sketcher.Constraint("Symmetric", 8, 3, 20, 3, -1, 1),
    Sketcher.Constraint("PointOnObject", 10, 3, -1),
    Sketcher.Constraint("PointOnObject", 7, 1, -2),
    Sketcher.Constraint("Horizontal", 8, 3, 3, 1),
    Sketcher.Constraint("Horizontal", 3, 1, 11, 1),
    Sketcher.Constraint("Vertical", 6, 3, 8, 3),
    Sketcher.Constraint("Radius", 1, Q("0.125 in")),
    Sketcher.Constraint("Radius", 2, Q("0.65625 in")),
    Sketcher.Constraint("DistanceY", 8, 3, -1, 1, Q("0.328125 in")),
    Sketcher.Constraint("DistanceX", 4, 3, 0, 3, Q("0.328125 in")),
    Sketcher.Constraint("DistanceY", 4, 3, 0, 3, Q("0.328125 in")),
])
pad5 = doc.addObject("PartDesign::Pad", "Pad004")
body.addObject(pad5)
pad5.Profile = sketch5
pad5.Length = Q("0.05 in")
pad5.Reversed = True

doc.recompute()
